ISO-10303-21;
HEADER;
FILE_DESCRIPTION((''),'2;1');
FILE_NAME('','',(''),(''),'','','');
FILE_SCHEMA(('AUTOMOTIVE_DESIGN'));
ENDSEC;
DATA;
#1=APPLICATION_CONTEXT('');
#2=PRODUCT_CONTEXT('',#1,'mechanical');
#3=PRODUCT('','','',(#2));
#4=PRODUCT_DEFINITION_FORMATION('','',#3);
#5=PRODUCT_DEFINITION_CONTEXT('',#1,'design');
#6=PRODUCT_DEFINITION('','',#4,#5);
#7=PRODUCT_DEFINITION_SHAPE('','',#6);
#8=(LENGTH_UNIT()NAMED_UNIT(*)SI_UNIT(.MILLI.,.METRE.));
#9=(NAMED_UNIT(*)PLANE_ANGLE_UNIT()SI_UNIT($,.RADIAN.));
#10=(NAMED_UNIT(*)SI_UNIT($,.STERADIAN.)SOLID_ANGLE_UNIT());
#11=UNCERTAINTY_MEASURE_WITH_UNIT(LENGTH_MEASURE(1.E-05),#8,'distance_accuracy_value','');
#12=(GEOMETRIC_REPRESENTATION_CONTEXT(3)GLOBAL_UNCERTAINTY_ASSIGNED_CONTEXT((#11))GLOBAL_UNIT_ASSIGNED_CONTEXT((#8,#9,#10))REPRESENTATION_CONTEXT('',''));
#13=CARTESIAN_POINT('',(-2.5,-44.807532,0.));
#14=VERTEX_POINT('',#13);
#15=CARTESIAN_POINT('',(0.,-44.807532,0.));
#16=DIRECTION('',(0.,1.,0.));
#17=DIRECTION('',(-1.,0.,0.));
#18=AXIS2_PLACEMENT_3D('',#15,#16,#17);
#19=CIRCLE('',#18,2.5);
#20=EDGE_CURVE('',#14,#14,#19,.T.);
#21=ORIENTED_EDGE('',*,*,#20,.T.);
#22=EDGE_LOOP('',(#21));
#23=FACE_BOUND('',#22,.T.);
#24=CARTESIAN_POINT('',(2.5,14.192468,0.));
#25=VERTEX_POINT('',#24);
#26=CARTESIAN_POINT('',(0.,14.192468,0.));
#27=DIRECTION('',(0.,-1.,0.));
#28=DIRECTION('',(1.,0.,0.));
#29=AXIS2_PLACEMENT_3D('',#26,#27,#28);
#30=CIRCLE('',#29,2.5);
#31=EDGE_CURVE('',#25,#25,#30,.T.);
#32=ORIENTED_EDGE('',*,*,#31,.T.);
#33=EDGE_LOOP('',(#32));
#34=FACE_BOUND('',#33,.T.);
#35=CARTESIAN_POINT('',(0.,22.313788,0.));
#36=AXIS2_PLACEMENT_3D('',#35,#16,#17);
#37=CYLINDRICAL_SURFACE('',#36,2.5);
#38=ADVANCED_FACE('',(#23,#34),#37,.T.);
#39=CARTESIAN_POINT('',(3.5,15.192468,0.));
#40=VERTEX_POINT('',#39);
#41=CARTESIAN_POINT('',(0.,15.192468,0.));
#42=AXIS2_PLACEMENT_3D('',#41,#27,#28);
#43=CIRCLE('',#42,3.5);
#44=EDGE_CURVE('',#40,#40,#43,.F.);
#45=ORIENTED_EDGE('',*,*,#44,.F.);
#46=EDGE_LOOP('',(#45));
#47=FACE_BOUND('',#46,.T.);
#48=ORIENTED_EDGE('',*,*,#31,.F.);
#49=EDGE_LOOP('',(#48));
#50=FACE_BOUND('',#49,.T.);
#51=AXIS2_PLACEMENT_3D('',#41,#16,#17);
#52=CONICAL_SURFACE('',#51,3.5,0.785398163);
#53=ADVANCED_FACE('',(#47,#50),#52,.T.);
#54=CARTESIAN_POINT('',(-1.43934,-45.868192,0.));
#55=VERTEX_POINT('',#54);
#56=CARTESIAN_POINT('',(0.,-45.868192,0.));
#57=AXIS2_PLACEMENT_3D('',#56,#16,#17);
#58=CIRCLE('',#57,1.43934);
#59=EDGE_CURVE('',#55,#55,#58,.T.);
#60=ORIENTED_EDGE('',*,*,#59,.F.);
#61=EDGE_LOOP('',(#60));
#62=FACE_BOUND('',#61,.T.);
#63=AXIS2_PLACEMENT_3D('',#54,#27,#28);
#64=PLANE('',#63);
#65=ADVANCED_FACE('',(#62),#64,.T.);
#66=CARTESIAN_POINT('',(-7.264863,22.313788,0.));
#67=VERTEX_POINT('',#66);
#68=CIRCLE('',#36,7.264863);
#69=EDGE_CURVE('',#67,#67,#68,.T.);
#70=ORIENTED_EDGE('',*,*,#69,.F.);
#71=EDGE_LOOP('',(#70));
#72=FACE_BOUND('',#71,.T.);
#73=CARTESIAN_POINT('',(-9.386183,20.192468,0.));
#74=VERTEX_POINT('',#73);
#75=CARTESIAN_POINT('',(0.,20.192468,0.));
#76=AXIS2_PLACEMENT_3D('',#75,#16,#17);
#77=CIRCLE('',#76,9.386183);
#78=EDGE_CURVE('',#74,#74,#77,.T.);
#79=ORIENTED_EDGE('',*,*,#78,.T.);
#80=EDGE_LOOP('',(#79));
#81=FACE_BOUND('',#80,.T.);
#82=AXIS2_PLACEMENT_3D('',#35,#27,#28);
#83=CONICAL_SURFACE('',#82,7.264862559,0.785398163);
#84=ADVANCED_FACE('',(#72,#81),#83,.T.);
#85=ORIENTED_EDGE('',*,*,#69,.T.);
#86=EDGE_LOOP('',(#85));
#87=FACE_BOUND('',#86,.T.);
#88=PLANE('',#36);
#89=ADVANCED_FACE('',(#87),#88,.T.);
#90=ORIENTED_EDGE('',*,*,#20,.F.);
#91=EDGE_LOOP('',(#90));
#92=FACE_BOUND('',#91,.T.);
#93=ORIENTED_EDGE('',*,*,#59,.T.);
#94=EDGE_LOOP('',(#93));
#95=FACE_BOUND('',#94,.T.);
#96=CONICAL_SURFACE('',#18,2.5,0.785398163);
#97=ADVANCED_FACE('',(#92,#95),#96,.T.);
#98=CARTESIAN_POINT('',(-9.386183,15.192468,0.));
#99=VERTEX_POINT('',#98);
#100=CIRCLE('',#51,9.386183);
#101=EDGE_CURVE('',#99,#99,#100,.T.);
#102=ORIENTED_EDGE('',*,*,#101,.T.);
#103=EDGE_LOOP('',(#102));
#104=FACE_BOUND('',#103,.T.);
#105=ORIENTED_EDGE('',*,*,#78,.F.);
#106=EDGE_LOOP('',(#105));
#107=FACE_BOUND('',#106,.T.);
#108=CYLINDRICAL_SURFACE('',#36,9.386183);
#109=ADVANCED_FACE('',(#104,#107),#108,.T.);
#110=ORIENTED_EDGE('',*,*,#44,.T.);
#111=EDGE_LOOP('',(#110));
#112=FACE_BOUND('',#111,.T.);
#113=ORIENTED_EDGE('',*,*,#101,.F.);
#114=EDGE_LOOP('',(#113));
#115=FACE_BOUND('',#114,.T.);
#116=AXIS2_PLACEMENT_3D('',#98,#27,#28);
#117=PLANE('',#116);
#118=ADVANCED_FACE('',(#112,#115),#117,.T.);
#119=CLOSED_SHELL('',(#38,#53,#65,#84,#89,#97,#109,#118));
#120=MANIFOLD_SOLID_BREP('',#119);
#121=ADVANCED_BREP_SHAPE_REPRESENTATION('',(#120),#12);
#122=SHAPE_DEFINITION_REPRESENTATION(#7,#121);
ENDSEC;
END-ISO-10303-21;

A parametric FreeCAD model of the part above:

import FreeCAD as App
import Part
import Sketcher
from FreeCAD import Vector
Q = App.Units.Quantity


def edges_at(feature, points):
    """Names of the edges that pass closest to the given points."""
    edges = feature.Shape.Edges
    near = lambda p: min(range(len(edges)), key=lambda i: edges[i].distToShape(Part.Vertex(*p))[0])
    return sorted({f"Edge{near(p) + 1}" for p in points})


def add_polygon(sketch, points):
    """Adds a closed chain of lines whose ends are joined by coincident constraints."""
    first, n = sketch.GeometryCount, len(points)
    for a, b in zip(points, points[1:] + points[:1]):
        sketch.addGeometry(Part.LineSegment(App.Vector(*a, 0), App.Vector(*b, 0)), False)
    for i in range(n):
        sketch.addConstraint(Sketcher.Constraint("Coincident", first + i, 2, first + (i + 1) % n, 1))

doc = App.newDocument("Part")
body = doc.addObject("PartDesign::Body", "Body")

sketch1 = body.newObject("Sketcher::SketchObject", "Sketch")
sketch1.AttachmentSupport = (doc.getObject("XY_Plane"), [""])
sketch1.MapMode = "FlatFace"
add_polygon(sketch1, [(0, 22.313788), (-7.264863, 22.313788), (-9.386183, 20.192468), (-9.386183, 15.192468), (-2.5, 15.192468), (-2.5, -44.807532), (-1.43934, -45.868192), (0, -45.868192)])
sketch1.addConstraint([
    Sketcher.Constraint("Horizontal", 0),
    Sketcher.Constraint("Vertical", 2),
    Sketcher.Constraint("Horizontal", 3),
    Sketcher.Constraint("Vertical", 4),
    Sketcher.Constraint("Horizontal", 6),
    Sketcher.Constraint("Vertical", 7),
    Sketcher.Constraint("PointOnObject", 6, 2, -2),
    Sketcher.Constraint("Perpendicular", 1, 5),
    Sketcher.Constraint("DistanceY", 2, 2, 2, 1, 5.0),
    Sketcher.Constraint("DistanceY", 4, 2, 4, 1, 60.0),
    Sketcher.Constraint("Angle", 1, Q("-135 deg")),
    Sketcher.Constraint("Distance", 1, 3.0),
    Sketcher.Constraint("Distance", 5, 1.5),
    Sketcher.Constraint("DistanceX", 3, 2, -1, 1, 2.5),
    Sketcher.Constraint("DistanceX", 0, 2, 0, 1, 7.264863),
    Sketcher.Constraint("DistanceY", -1, 1, 0, 2, 22.313788),
])
revolution = body.newObject("PartDesign::Revolution", "Revolution")
revolution.Profile = sketch1
revolution.ReferenceAxis = (sketch1, ["V_Axis"])
revolution.Angle = 360
doc.recompute()

chamfer = body.newObject("PartDesign::Chamfer", "Chamfer")
chamfer.Base = (revolution, edges_at(revolution, [(2.5, 15.192, 0)]))
chamfer.Size = 1

doc.recompute()
